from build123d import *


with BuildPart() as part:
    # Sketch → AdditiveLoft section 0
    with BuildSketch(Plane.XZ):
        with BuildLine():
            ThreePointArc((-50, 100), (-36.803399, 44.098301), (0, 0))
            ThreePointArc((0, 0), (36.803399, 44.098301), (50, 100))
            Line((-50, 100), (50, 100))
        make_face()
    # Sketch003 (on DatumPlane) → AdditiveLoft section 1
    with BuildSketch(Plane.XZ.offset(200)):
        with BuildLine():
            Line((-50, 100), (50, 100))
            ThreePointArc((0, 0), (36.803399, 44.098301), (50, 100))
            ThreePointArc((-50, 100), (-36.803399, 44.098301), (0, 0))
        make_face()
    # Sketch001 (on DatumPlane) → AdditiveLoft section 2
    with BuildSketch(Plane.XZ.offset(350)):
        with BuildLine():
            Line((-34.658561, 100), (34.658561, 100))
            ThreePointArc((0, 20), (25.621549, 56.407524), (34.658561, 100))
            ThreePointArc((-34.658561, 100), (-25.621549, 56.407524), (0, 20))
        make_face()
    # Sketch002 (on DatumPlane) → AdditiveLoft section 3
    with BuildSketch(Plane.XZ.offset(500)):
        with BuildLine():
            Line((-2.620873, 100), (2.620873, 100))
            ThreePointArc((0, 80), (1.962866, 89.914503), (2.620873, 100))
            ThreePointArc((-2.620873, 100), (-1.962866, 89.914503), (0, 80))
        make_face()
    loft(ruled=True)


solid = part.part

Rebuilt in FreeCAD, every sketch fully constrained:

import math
import FreeCAD as App
import Part
import Sketcher

V = App.Vector

doc = App.newDocument("Part")
body = doc.addObject("PartDesign::Body", "Body")

# Sketch on XZ plane
sketch1 = body.newObject("Sketcher::SketchObject", "Sketch")
sketch1.AttachmentSupport = (doc.getObject("XZ_Plane"), [""])
sketch1.MapMode = "FlatFace"
sketch1.addGeometry([
    Part.ArcOfCircle(Part.Circle(V(75, 100, 0), V(0, 0, 1), 125), math.radians(-180), math.radians(-127)),
    Part.ArcOfCircle(Part.Circle(V(-75, 100, 0), V(0, 0, 1), 125), math.radians(-53), math.radians(0)),
    Part.LineSegment(V(50, 100, 0), V(-50, 100, 0)),
], False)
sketch1.addConstraint([
    Sketcher.Constraint("Coincident", 0, 2, 1, 1),
    Sketcher.Constraint("Coincident", 1, 2, 2, 1),
    Sketcher.Constraint("Coincident", 2, 2, 0, 1),
    Sketcher.Constraint("Horizontal", 2),
    Sketcher.Constraint("Coincident", 0, 2, -1, 1),
    Sketcher.Constraint("Equal", 0, 1),
    Sketcher.Constraint("Horizontal", 0, 3, 1, 3),
    Sketcher.Constraint("Horizontal", 0, 3, 1, 2),
    Sketcher.Constraint("Radius", 0, 125.000001),
    Sketcher.Constraint("DistanceX", 2, 2, 2, 1, 100.0),
])

# Sketch on XZ plane
sketch2 = body.newObject("Sketcher::SketchObject", "Sketch001")
sketch2.AttachmentSupport = (doc.getObject("XZ_Plane"), [""])
sketch2.MapMode = "FlatFace"
sketch2.AttachmentOffset = App.Placement(V(0, 0, 200), App.Rotation())
sketch2.addGeometry([
    Part.LineSegment(V(50, 100, 0), V(-50, 100, 0)),
    Part.ArcOfCircle(Part.Circle(V(75, 100, 0), V(0, 0, 1), 125), math.radians(-180), math.radians(-127)),
    Part.ArcOfCircle(Part.Circle(V(-75, 100, 0), V(0, 0, 1), 125), math.radians(-53), math.radians(0)),
], False)
sketch2.addConstraint([
    Sketcher.Constraint("Coincident", 0, 2, 1, 1),
    Sketcher.Constraint("Coincident", 1, 2, 2, 1),
    Sketcher.Constraint("Coincident", 2, 2, 0, 1),
    Sketcher.Constraint("Horizontal", 0),
    Sketcher.Constraint("Coincident", 1, 2, -1, 1),
    Sketcher.Constraint("Equal", 1, 2),
    Sketcher.Constraint("Horizontal", 1, 3, 2, 3),
    Sketcher.Constraint("Horizontal", 2, 3, 0, 2),
    Sketcher.Constraint("Radius", 1, 125.000001),
    Sketcher.Constraint("DistanceX", 0, 2, 0, 1, 100.0),
])

# Sketch on XZ plane
sketch3 = body.newObject("Sketcher::SketchObject", "Sketch002")
sketch3.AttachmentSupport = (doc.getObject("XZ_Plane"), [""])
sketch3.MapMode = "FlatFace"
sketch3.AttachmentOffset = App.Placement(V(0, 0, 350), App.Rotation())
sketch3.addGeometry([
    Part.LineSegment(V(35, 100, 0), V(-35, 100, 0)),
    Part.ArcOfCircle(Part.Circle(V(75, 100, 0), V(0, 0, 1), 110), math.radians(180), math.radians(227)),
    Part.ArcOfCircle(Part.Circle(V(-75, 100, 0), V(0, 0, 1), 110), math.radians(-47), math.radians(0)),
], False)
sketch3.addConstraint([
    Sketcher.Constraint("Coincident", 0, 2, 1, 1),
    Sketcher.Constraint("Coincident", 1, 2, 2, 1),
    Sketcher.Constraint("Coincident", 2, 2, 0, 1),
    Sketcher.Constraint("Horizontal", 0),
    Sketcher.Constraint("Equal", 1, 2),
    Sketcher.Constraint("Symmetric", 1, 3, 2, 3, -2),
    Sketcher.Constraint("Horizontal", 2, 3, 0, 2),
    Sketcher.Constraint("DistanceY", -1, 1, 1, 3, 99.999998),
    Sketcher.Constraint("DistanceY", -1, 1, 1, 2, 20.0),
    Sketcher.Constraint("Radius", 1, 109.658557),
])

# Sketch on XZ plane
sketch4 = body.newObject("Sketcher::SketchObject", "Sketch003")
sketch4.AttachmentSupport = (doc.getObject("XZ_Plane"), [""])
sketch4.MapMode = "FlatFace"
sketch4.AttachmentOffset = App.Placement(V(0, 0, 500), App.Rotation())
sketch4.addGeometry([
    Part.LineSegment(V(3, 100, 0), V(-3, 100, 0)),
    Part.ArcOfCircle(Part.Circle(V(75, 100, 0), V(0, 0, 1), 78), math.radians(180), math.radians(194.93)),
    Part.ArcOfCircle(Part.Circle(V(-75, 100, 0), V(0, 0, 1), 78), math.radians(-14.93), math.radians(0)),
], False)
sketch4.addConstraint([
    Sketcher.Constraint("Coincident", 0, 2, 1, 1),
    Sketcher.Constraint("Coincident", 1, 2, 2, 1),
    Sketcher.Constraint("Coincident", 2, 2, 0, 1),
    Sketcher.Constraint("Horizontal", 0),
    Sketcher.Constraint("Equal", 1, 2),
    Sketcher.Constraint("Symmetric", 1, 3, 2, 3, -2),
    Sketcher.Constraint("DistanceY", -1, 1, 0, 2, 100.0),
    Sketcher.Constraint("DistanceY", -1, 1, 1, 2, 80.0),
    Sketcher.Constraint("Radius", 1, 77.620851),
    Sketcher.Constraint("DistanceX", 0, 2, 0, 1, 5.241746),
])

additiveloft = body.newObject("PartDesign::AdditiveLoft", "AdditiveLoft")
additiveloft.Profile = sketch1
additiveloft.Sections = [sketch2, sketch3, sketch4]
additiveloft.Ruled = True

doc.recompute()
